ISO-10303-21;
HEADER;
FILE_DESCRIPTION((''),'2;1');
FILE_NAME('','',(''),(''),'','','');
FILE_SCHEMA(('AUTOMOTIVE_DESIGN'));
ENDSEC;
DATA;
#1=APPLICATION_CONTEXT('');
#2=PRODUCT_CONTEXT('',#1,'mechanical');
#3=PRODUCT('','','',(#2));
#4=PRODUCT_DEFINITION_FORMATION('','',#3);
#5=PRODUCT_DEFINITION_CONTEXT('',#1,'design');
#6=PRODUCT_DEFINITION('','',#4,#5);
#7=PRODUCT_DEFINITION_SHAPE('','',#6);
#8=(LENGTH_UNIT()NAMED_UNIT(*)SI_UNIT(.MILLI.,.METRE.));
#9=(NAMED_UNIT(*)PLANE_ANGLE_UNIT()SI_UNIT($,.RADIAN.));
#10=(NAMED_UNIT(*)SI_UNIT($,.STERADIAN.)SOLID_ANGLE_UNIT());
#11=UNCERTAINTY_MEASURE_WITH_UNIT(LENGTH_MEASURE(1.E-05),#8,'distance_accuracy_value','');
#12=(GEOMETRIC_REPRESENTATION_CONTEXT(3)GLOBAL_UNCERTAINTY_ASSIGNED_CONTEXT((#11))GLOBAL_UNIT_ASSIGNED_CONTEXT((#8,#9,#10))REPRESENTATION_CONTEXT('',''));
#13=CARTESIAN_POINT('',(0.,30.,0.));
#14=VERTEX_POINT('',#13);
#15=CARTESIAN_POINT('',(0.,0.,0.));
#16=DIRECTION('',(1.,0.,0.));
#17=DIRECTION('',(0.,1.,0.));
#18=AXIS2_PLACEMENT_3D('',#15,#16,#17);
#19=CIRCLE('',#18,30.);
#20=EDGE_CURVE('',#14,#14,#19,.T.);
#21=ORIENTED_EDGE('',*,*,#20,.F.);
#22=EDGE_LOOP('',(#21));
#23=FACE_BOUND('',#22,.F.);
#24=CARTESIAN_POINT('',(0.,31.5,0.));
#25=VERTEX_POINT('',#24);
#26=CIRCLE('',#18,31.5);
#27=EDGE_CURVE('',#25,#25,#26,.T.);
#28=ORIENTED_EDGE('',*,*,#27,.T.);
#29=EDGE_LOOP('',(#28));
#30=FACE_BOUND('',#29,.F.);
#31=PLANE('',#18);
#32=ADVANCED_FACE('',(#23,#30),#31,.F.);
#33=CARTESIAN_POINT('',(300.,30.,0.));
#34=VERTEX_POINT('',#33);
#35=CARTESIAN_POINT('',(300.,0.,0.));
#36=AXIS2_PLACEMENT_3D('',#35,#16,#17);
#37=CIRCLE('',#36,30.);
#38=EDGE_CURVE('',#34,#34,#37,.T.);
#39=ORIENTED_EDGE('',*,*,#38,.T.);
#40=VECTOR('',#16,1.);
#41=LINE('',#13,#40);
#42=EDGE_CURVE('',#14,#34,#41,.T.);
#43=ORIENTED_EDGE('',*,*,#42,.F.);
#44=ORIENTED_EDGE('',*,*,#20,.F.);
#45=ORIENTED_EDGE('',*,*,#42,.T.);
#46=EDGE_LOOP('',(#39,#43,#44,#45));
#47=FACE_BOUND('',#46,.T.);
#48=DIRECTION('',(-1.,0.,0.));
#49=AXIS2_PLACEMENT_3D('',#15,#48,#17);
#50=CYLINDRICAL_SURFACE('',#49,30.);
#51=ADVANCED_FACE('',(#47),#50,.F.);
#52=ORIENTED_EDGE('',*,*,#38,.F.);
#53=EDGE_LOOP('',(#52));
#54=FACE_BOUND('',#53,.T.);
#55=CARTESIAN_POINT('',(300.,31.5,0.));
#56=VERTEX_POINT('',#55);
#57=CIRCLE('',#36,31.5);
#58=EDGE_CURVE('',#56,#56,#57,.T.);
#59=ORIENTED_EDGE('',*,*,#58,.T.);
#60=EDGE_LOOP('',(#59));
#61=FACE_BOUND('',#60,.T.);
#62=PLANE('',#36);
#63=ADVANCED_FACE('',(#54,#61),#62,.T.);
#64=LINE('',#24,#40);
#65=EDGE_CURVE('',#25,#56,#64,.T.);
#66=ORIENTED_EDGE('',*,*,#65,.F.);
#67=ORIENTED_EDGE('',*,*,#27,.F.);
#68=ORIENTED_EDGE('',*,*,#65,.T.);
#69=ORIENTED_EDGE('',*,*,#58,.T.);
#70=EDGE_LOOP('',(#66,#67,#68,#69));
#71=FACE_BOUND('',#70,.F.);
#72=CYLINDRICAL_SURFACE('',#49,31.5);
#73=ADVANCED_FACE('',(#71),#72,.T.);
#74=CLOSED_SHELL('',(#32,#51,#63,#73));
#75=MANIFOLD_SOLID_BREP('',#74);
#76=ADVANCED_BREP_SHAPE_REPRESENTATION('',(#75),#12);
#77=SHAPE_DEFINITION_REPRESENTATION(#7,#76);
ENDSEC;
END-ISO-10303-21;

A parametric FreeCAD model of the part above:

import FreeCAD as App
import Part
import Sketcher
Q = App.Units.Quantity

doc = App.newDocument("Part")
body = doc.addObject("PartDesign::Body", "Body")

sketch1 = doc.addObject("Sketcher::SketchObject", "Sketch")
body.addObject(sketch1)
sketch1.AttachmentSupport = (doc.YZ_Plane, [""])
sketch1.MapMode = "FlatFace"
sketch1.addGeometry([
    Part.Circle(App.Vector(0, 0, 0), App.Vector(0, 0, 1), 32),
    Part.Circle(App.Vector(0, 0, 0), App.Vector(0, 0, 1), 30),
], False)
sketch1.addConstraint([
    Sketcher.Constraint("Coincident", 0, 3, -1, 1),
    Sketcher.Constraint("Coincident", 1, 3, -1, 1),
    Sketcher.Constraint("Diameter", 0, Q("63 mm")),
    Sketcher.Constraint("Diameter", 1, Q("60 mm")),
])
pad1 = doc.addObject("PartDesign::Pad", "Pad")
body.addObject(pad1)
pad1.Profile = sketch1
pad1.Length = 300

doc.recompute()
